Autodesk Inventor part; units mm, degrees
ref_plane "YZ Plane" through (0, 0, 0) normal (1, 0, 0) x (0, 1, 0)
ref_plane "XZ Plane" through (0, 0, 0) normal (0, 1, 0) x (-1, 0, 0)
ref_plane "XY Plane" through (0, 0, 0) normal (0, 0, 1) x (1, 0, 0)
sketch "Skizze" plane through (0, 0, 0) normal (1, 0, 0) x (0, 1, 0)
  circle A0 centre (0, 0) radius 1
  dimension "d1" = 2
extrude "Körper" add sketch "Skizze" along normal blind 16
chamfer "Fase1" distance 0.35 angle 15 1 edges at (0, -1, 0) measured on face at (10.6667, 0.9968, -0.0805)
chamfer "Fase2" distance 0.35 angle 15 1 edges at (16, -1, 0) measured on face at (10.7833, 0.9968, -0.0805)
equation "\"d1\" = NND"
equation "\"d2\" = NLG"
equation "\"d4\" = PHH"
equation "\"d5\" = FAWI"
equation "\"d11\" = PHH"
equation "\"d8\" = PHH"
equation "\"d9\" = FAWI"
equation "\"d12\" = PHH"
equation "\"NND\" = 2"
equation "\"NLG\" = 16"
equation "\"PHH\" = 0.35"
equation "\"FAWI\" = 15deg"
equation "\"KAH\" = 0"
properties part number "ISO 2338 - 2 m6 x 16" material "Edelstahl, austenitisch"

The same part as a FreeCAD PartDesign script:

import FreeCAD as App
import Part
import Sketcher


def edges_at(feature, points):
    """Names of the edges that pass closest to the given points."""
    edges = feature.Shape.Edges
    near = lambda p: min(range(len(edges)), key=lambda i: edges[i].distToShape(Part.Vertex(*p))[0])
    return sorted({f"Edge{near(p) + 1}" for p in points})

doc = App.newDocument("Part")
body = doc.addObject("PartDesign::Body", "Body")

# Sketch on YZ plane
sketch1 = body.newObject("Sketcher::SketchObject", "Sketch")
sketch1.AttachmentSupport = (doc.getObject("YZ_Plane"), [""])
sketch1.MapMode = "FlatFace"
sketch1.addGeometry(Part.Circle(App.Vector(0, 0, 0), App.Vector(0, 0, 1), 1), False)
sketch1.addConstraint([
    Sketcher.Constraint("Coincident", 0, 3, -1, 1),
    Sketcher.Constraint("Diameter", 0, 2.0),
])
pad1 = body.newObject("PartDesign::Pad", "Pad")
pad1.Profile = sketch1
pad1.Length = 16
doc.recompute()

chamfer = body.newObject("PartDesign::Chamfer", "Chamfer")
chamfer.Base = (pad1, edges_at(pad1, [(0, -1, 0)]))
chamfer.ChamferType = "Distance and Angle"
chamfer.Size = 0.35
chamfer.Angle = 15
doc.recompute()

chamfer2 = body.newObject("PartDesign::Chamfer", "Chamfer001")
chamfer2.Base = (chamfer, edges_at(chamfer, [(16, -1, 0)]))
chamfer2.ChamferType = "Distance and Angle"
chamfer2.Size = 0.35
chamfer2.Angle = 15

doc.recompute()
